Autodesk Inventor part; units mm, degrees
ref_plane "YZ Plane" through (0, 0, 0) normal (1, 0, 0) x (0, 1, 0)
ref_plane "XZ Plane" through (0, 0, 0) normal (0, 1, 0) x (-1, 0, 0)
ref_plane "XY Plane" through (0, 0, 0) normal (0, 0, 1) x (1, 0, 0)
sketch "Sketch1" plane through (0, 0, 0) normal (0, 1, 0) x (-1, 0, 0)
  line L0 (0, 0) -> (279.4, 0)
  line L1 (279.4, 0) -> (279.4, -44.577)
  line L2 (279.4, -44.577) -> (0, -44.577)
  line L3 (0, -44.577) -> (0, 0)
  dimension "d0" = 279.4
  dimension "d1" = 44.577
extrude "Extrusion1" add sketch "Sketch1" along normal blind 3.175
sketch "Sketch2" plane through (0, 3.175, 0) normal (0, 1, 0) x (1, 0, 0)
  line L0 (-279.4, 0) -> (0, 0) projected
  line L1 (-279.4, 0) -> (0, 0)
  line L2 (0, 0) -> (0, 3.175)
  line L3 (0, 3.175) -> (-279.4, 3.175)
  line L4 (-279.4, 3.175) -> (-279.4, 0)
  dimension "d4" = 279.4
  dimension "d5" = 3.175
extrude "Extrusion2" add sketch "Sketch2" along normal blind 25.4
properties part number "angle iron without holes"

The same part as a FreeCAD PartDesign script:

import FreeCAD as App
import Part
import Sketcher
from FreeCAD import Vector
Q = App.Units.Quantity


def add_polygon(sketch, points):
    """Adds a closed chain of lines whose ends are joined by coincident constraints."""
    first, n = sketch.GeometryCount, len(points)
    for a, b in zip(points, points[1:] + points[:1]):
        sketch.addGeometry(Part.LineSegment(App.Vector(*a, 0), App.Vector(*b, 0)), False)
    for i in range(n):
        sketch.addConstraint(Sketcher.Constraint("Coincident", first + i, 2, first + (i + 1) % n, 1))

doc = App.newDocument("Part")
body = doc.addObject("PartDesign::Body", "Body")

sketch1 = body.newObject("Sketcher::SketchObject", "Sketch")
sketch1.AttachmentSupport = (doc.getObject("XZ_Plane"), [""])
sketch1.MapMode = "FlatFace"
add_polygon(sketch1, [(-279.4, 0), (0, 0), (0, -44.577), (-279.4, -44.577)])
sketch1.addConstraint([
    Sketcher.Constraint("Horizontal", 0),
    Sketcher.Constraint("Vertical", 1),
    Sketcher.Constraint("Horizontal", 2),
    Sketcher.Constraint("Vertical", 3),
    Sketcher.Constraint("Coincident", 0, 2, -1, 1),
    Sketcher.Constraint("DistanceX", 0, 1, 0, 2, Q("11 in")),
    Sketcher.Constraint("DistanceY", 1, 2, 1, 1, Q("1.755 in")),
])
pad1 = body.newObject("PartDesign::Pad", "Pad")
pad1.Profile = sketch1
pad1.Length = Q("0.125 in")
pad1.Reversed = True

sketch2 = body.newObject("Sketcher::SketchObject", "Sketch001")
sketch2.AttachmentSupport = (doc.getObject("XZ_Plane"), [""])
sketch2.MapMode = "FlatFace"
sketch2.AttachmentOffset = App.Placement(Vector(0, 0, -0.125 * 25.4), App.Rotation())
add_polygon(sketch2, [(-279.4, -3.175), (-279.4, 0), (0, 0), (0, -3.175)])
sketch2.addConstraint([
    Sketcher.Constraint("Vertical", 0),
    Sketcher.Constraint("Horizontal", 1),
    Sketcher.Constraint("Vertical", 2),
    Sketcher.Constraint("Horizontal", 3),
    Sketcher.Constraint("Coincident", 1, 2, -1, 1),
    Sketcher.Constraint("DistanceX", 1, 1, 1, 2, Q("11 in")),
    Sketcher.Constraint("DistanceY", 0, 1, 0, 2, Q("0.125 in")),
])
pad2 = body.newObject("PartDesign::Pad", "Pad001")
pad2.Profile = sketch2
pad2.Length = Q("1 in")
pad2.Reversed = True

doc.recompute()
